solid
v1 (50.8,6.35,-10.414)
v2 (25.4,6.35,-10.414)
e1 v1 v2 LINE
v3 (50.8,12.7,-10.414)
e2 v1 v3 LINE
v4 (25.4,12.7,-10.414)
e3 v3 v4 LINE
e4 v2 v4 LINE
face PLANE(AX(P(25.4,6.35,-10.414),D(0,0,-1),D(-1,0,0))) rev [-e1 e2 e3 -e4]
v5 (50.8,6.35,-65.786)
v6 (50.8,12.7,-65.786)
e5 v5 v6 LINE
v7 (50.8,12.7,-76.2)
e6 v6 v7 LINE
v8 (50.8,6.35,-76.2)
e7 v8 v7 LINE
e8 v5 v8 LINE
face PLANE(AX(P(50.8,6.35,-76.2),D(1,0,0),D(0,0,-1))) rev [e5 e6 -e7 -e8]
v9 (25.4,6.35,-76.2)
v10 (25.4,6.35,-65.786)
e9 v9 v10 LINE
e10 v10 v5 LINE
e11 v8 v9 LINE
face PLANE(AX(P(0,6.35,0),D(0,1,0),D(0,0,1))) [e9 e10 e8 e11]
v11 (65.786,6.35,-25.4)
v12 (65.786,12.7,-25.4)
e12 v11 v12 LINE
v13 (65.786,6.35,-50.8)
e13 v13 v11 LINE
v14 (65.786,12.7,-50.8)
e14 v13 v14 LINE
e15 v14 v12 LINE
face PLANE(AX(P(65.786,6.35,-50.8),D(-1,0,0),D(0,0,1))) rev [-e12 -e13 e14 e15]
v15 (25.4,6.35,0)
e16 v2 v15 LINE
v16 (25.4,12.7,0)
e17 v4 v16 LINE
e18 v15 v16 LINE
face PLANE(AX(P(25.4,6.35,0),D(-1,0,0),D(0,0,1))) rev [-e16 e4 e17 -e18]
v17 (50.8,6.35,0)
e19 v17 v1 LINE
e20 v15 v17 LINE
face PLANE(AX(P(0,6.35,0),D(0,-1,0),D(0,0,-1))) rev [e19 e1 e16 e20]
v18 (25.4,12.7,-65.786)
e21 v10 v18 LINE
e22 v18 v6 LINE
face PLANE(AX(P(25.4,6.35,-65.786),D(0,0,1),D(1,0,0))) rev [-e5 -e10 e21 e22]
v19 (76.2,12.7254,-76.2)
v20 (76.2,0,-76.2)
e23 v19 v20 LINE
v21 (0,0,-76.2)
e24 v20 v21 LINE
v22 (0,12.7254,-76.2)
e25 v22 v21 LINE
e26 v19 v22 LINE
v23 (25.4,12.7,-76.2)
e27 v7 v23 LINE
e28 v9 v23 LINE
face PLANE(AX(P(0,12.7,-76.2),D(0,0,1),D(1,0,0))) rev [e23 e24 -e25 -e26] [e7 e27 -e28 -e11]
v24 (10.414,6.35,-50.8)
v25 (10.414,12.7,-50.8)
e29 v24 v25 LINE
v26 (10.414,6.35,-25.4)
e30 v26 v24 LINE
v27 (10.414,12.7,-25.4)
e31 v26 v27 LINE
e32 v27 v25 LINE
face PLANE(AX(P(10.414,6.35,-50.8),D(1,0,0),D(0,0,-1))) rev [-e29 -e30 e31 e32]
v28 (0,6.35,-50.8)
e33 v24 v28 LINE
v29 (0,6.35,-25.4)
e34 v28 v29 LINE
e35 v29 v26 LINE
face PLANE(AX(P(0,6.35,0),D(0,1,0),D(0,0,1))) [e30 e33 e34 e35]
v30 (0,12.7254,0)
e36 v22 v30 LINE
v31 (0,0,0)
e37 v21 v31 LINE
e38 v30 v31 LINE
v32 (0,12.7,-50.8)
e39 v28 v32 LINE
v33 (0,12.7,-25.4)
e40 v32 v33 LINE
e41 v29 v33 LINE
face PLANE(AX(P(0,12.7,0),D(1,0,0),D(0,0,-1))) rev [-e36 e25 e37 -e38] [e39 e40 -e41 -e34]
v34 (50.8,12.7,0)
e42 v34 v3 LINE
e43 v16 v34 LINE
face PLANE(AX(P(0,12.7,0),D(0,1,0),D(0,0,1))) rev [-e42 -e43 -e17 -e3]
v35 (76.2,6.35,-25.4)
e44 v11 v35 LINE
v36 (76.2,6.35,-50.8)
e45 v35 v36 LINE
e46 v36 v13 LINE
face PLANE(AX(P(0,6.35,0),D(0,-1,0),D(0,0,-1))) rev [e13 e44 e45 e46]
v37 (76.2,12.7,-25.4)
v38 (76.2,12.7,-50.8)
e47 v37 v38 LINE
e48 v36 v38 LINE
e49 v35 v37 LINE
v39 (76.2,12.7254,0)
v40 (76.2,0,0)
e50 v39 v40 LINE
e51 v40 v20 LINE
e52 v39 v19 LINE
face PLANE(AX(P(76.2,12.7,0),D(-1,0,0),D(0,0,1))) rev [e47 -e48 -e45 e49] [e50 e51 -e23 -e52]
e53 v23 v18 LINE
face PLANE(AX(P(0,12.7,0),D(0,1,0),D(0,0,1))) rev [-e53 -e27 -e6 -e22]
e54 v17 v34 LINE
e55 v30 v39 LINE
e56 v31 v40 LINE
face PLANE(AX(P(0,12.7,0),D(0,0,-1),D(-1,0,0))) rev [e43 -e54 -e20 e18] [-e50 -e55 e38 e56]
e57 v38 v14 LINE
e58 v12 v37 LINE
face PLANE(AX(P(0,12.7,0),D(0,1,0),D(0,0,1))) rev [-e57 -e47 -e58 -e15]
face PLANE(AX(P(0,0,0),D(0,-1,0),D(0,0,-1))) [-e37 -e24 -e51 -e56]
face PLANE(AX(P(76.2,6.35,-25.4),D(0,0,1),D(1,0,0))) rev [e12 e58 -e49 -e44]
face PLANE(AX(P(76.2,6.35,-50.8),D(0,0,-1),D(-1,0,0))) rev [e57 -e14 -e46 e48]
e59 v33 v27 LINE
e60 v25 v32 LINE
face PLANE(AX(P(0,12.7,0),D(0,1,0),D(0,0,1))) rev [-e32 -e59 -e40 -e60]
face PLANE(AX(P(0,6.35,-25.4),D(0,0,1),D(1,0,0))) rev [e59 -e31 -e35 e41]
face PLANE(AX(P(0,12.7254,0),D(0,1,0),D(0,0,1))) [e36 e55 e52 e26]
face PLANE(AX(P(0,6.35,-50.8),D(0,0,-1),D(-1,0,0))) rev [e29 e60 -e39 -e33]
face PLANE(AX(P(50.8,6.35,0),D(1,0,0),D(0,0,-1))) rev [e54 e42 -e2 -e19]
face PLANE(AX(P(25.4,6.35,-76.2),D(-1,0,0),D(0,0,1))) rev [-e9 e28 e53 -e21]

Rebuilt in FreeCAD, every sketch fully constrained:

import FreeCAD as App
import Part
import Sketcher
Q = App.Units.Quantity

doc = App.newDocument("Part")
body = doc.addObject("PartDesign::Body", "Body")

sketch1 = body.newObject("Sketcher::SketchObject", "Sketch")
sketch1.AttachmentSupport = (doc.getObject("XZ_Plane"), [""])
sketch1.MapMode = "FlatFace"
sketch1.addGeometry([
    Part.LineSegment(App.Vector(0, -76.2, 0), App.Vector(0, 0, 0)),
    Part.LineSegment(App.Vector(0, 0, 0), App.Vector(76.2, 0, 0)),
    Part.LineSegment(App.Vector(76.2, 0, 0), App.Vector(76.2, -76.2, 0)),
    Part.LineSegment(App.Vector(76.2, -76.2, 0), App.Vector(0, -76.2, 0)),
], False)
sketch1.addConstraint([
    Sketcher.Constraint("Coincident", 0, 2, 1, 1),
    Sketcher.Constraint("Coincident", 1, 2, 2, 1),
    Sketcher.Constraint("Coincident", 2, 2, 3, 1),
    Sketcher.Constraint("Coincident", 3, 2, 0, 1),
    Sketcher.Constraint("Vertical", 0),
    Sketcher.Constraint("Horizontal", 1),
    Sketcher.Constraint("Vertical", 2),
    Sketcher.Constraint("Horizontal", 3),
    Sketcher.Constraint("Coincident", 0, 2, -1, 1),
    Sketcher.Constraint("Equal", 3, 0),
    Sketcher.Constraint("DistanceX", 1, 1, 1, 2, Q("3 in")),
])
pad1 = body.newObject("PartDesign::Pad", "Pad")
pad1.Profile = sketch1
pad1.Length = Q("0.5 in")
pad1.Reversed = True

sketch2 = body.newObject("Sketcher::SketchObject", "Sketch001")
sketch2.AttachmentSupport = (doc.getObject("XZ_Plane"), [""])
sketch2.MapMode = "FlatFace"
sketch2.AttachmentOffset = App.Placement(App.Vector(0, 0, -0.5 * 25.4), App.Rotation())
sketch2.addGeometry([
    Part.LineSegment(App.Vector(25.4, -76.2, 0), App.Vector(25.4, -65.786, 0)),
    Part.LineSegment(App.Vector(25.4, -65.786, 0), App.Vector(50.8, -65.786, 0)),
    Part.LineSegment(App.Vector(50.8, -65.786, 0), App.Vector(50.8, -76.2, 0)),
    Part.LineSegment(App.Vector(50.8, -76.2, 0), App.Vector(25.4, -76.2, 0)),
    Part.LineSegment(App.Vector(0, -50.8, 0), App.Vector(0, -25.4, 0)),
    Part.LineSegment(App.Vector(0, -25.4, 0), App.Vector(10.414, -25.4, 0)),
    Part.LineSegment(App.Vector(10.414, -25.4, 0), App.Vector(10.414, -50.8, 0)),
    Part.LineSegment(App.Vector(10.414, -50.8, 0), App.Vector(0, -50.8, 0)),
    Part.LineSegment(App.Vector(25.4, -10.414, 0), App.Vector(25.4, 0, 0)),
    Part.LineSegment(App.Vector(25.4, 0, 0), App.Vector(50.8, 0, 0)),
    Part.LineSegment(App.Vector(50.8, 0, 0), App.Vector(50.8, -10.414, 0)),
    Part.LineSegment(App.Vector(50.8, -10.414, 0), App.Vector(25.4, -10.414, 0)),
    Part.LineSegment(App.Vector(65.786, -50.8, 0), App.Vector(65.786, -25.4, 0)),
    Part.LineSegment(App.Vector(65.786, -25.4, 0), App.Vector(76.2, -25.4, 0)),
    Part.LineSegment(App.Vector(76.2, -25.4, 0), App.Vector(76.2, -50.8, 0)),
    Part.LineSegment(App.Vector(76.2, -50.8, 0), App.Vector(65.786, -50.8, 0)),
], False)
sketch2.addConstraint([
    Sketcher.Constraint("Coincident", 0, 2, 1, 1),
    Sketcher.Constraint("Coincident", 1, 2, 2, 1),
    Sketcher.Constraint("Coincident", 2, 2, 3, 1),
    Sketcher.Constraint("Coincident", 3, 2, 0, 1),
    Sketcher.Constraint("Coincident", 4, 2, 5, 1),
    Sketcher.Constraint("Coincident", 5, 2, 6, 1),
    Sketcher.Constraint("Coincident", 6, 2, 7, 1),
    Sketcher.Constraint("Coincident", 7, 2, 4, 1),
    Sketcher.Constraint("Coincident", 8, 2, 9, 1),
    Sketcher.Constraint("Coincident", 9, 2, 10, 1),
    Sketcher.Constraint("Coincident", 10, 2, 11, 1),
    Sketcher.Constraint("Coincident", 11, 2, 8, 1),
    Sketcher.Constraint("Coincident", 12, 2, 13, 1),
    Sketcher.Constraint("Coincident", 13, 2, 14, 1),
    Sketcher.Constraint("Coincident", 14, 2, 15, 1),
    Sketcher.Constraint("Coincident", 15, 2, 12, 1),
    Sketcher.Constraint("Vertical", 0),
    Sketcher.Constraint("Horizontal", 1),
    Sketcher.Constraint("Vertical", 2),
    Sketcher.Constraint("Horizontal", 3),
    Sketcher.Constraint("Vertical", 4),
    Sketcher.Constraint("Horizontal", 5),
    Sketcher.Constraint("Vertical", 6),
    Sketcher.Constraint("Horizontal", 7),
    Sketcher.Constraint("Vertical", 8),
    Sketcher.Constraint("Horizontal", 9),
    Sketcher.Constraint("Vertical", 10),
    Sketcher.Constraint("Horizontal", 11),
    Sketcher.Constraint("Vertical", 12),
    Sketcher.Constraint("Horizontal", 13),
    Sketcher.Constraint("Vertical", 14),
    Sketcher.Constraint("Horizontal", 15),
    Sketcher.Constraint("PointOnObject", 4, 2, -2),
    Sketcher.Constraint("PointOnObject", 8, 2, -1),
    Sketcher.Constraint("Horizontal", 5, 2, 12, 2),
    Sketcher.Constraint("Horizontal", 7, 2, 14, 2),
    Sketcher.Constraint("Vertical", 3, 2, 8, 2),
    Sketcher.Constraint("Vertical", 2, 2, 9, 2),
    Sketcher.Constraint("Equal", 7, 13),
    Sketcher.Constraint("Equal", 15, 0),
    Sketcher.Constraint("Equal", 11, 4),
    Sketcher.Constraint("Equal", 2, 8),
    Sketcher.Constraint("DistanceX", 1, 1, 1, 2, Q("1 in")),
    Sketcher.Constraint("DistanceX", -1, 1, 0, 2, Q("1 in")),
    Sketcher.Constraint("DistanceY", 2, 2, -1, 1, Q("3 in")),
    Sketcher.Constraint("DistanceY", 4, 2, -1, 1, Q("1 in")),
    Sketcher.Constraint("DistanceX", -1, 1, 13, 2, Q("3 in")),
    Sketcher.Constraint("DistanceX", 5, 1, 5, 2, Q("0.41 in")),
])
pocket1 = body.newObject("PartDesign::Pocket", "Pocket")
pocket1.Profile = sketch2
pocket1.Length = Q("0.25 in")
pocket1.Reversed = True

sketch3 = body.newObject("Sketcher::SketchObject", "Sketch002")
sketch3.AttachmentSupport = (doc.getObject("XZ_Plane"), [""])
sketch3.MapMode = "FlatFace"
sketch3.AttachmentOffset = App.Placement(App.Vector(0, 0, -0.5 * 25.4), App.Rotation())
sketch3.addGeometry([
    Part.LineSegment(App.Vector(0, -76.2, 0), App.Vector(0, 0, 0)),
    Part.LineSegment(App.Vector(0, 0, 0), App.Vector(76.2, 0, 0)),
    Part.LineSegment(App.Vector(76.2, 0, 0), App.Vector(76.2, -76.2, 0)),
    Part.LineSegment(App.Vector(76.2, -76.2, 0), App.Vector(0, -76.2, 0)),
], False)
sketch3.addConstraint([
    Sketcher.Constraint("Coincident", 0, 2, 1, 1),
    Sketcher.Constraint("Coincident", 1, 2, 2, 1),
    Sketcher.Constraint("Coincident", 2, 2, 3, 1),
    Sketcher.Constraint("Coincident", 3, 2, 0, 1),
    Sketcher.Constraint("Vertical", 0),
    Sketcher.Constraint("Horizontal", 1),
    Sketcher.Constraint("Vertical", 2),
    Sketcher.Constraint("Horizontal", 3),
    Sketcher.Constraint("Coincident", 0, 2, -1, 1),
    Sketcher.Constraint("Equal", 3, 0),
    Sketcher.Constraint("DistanceX", 1, 1, 1, 2, Q("3 in")),
])
pad2 = body.newObject("PartDesign::Pad", "Pad001")
pad2.Profile = sketch3
pad2.Length = Q("0.001 in")
pad2.Reversed = True

doc.recompute()
